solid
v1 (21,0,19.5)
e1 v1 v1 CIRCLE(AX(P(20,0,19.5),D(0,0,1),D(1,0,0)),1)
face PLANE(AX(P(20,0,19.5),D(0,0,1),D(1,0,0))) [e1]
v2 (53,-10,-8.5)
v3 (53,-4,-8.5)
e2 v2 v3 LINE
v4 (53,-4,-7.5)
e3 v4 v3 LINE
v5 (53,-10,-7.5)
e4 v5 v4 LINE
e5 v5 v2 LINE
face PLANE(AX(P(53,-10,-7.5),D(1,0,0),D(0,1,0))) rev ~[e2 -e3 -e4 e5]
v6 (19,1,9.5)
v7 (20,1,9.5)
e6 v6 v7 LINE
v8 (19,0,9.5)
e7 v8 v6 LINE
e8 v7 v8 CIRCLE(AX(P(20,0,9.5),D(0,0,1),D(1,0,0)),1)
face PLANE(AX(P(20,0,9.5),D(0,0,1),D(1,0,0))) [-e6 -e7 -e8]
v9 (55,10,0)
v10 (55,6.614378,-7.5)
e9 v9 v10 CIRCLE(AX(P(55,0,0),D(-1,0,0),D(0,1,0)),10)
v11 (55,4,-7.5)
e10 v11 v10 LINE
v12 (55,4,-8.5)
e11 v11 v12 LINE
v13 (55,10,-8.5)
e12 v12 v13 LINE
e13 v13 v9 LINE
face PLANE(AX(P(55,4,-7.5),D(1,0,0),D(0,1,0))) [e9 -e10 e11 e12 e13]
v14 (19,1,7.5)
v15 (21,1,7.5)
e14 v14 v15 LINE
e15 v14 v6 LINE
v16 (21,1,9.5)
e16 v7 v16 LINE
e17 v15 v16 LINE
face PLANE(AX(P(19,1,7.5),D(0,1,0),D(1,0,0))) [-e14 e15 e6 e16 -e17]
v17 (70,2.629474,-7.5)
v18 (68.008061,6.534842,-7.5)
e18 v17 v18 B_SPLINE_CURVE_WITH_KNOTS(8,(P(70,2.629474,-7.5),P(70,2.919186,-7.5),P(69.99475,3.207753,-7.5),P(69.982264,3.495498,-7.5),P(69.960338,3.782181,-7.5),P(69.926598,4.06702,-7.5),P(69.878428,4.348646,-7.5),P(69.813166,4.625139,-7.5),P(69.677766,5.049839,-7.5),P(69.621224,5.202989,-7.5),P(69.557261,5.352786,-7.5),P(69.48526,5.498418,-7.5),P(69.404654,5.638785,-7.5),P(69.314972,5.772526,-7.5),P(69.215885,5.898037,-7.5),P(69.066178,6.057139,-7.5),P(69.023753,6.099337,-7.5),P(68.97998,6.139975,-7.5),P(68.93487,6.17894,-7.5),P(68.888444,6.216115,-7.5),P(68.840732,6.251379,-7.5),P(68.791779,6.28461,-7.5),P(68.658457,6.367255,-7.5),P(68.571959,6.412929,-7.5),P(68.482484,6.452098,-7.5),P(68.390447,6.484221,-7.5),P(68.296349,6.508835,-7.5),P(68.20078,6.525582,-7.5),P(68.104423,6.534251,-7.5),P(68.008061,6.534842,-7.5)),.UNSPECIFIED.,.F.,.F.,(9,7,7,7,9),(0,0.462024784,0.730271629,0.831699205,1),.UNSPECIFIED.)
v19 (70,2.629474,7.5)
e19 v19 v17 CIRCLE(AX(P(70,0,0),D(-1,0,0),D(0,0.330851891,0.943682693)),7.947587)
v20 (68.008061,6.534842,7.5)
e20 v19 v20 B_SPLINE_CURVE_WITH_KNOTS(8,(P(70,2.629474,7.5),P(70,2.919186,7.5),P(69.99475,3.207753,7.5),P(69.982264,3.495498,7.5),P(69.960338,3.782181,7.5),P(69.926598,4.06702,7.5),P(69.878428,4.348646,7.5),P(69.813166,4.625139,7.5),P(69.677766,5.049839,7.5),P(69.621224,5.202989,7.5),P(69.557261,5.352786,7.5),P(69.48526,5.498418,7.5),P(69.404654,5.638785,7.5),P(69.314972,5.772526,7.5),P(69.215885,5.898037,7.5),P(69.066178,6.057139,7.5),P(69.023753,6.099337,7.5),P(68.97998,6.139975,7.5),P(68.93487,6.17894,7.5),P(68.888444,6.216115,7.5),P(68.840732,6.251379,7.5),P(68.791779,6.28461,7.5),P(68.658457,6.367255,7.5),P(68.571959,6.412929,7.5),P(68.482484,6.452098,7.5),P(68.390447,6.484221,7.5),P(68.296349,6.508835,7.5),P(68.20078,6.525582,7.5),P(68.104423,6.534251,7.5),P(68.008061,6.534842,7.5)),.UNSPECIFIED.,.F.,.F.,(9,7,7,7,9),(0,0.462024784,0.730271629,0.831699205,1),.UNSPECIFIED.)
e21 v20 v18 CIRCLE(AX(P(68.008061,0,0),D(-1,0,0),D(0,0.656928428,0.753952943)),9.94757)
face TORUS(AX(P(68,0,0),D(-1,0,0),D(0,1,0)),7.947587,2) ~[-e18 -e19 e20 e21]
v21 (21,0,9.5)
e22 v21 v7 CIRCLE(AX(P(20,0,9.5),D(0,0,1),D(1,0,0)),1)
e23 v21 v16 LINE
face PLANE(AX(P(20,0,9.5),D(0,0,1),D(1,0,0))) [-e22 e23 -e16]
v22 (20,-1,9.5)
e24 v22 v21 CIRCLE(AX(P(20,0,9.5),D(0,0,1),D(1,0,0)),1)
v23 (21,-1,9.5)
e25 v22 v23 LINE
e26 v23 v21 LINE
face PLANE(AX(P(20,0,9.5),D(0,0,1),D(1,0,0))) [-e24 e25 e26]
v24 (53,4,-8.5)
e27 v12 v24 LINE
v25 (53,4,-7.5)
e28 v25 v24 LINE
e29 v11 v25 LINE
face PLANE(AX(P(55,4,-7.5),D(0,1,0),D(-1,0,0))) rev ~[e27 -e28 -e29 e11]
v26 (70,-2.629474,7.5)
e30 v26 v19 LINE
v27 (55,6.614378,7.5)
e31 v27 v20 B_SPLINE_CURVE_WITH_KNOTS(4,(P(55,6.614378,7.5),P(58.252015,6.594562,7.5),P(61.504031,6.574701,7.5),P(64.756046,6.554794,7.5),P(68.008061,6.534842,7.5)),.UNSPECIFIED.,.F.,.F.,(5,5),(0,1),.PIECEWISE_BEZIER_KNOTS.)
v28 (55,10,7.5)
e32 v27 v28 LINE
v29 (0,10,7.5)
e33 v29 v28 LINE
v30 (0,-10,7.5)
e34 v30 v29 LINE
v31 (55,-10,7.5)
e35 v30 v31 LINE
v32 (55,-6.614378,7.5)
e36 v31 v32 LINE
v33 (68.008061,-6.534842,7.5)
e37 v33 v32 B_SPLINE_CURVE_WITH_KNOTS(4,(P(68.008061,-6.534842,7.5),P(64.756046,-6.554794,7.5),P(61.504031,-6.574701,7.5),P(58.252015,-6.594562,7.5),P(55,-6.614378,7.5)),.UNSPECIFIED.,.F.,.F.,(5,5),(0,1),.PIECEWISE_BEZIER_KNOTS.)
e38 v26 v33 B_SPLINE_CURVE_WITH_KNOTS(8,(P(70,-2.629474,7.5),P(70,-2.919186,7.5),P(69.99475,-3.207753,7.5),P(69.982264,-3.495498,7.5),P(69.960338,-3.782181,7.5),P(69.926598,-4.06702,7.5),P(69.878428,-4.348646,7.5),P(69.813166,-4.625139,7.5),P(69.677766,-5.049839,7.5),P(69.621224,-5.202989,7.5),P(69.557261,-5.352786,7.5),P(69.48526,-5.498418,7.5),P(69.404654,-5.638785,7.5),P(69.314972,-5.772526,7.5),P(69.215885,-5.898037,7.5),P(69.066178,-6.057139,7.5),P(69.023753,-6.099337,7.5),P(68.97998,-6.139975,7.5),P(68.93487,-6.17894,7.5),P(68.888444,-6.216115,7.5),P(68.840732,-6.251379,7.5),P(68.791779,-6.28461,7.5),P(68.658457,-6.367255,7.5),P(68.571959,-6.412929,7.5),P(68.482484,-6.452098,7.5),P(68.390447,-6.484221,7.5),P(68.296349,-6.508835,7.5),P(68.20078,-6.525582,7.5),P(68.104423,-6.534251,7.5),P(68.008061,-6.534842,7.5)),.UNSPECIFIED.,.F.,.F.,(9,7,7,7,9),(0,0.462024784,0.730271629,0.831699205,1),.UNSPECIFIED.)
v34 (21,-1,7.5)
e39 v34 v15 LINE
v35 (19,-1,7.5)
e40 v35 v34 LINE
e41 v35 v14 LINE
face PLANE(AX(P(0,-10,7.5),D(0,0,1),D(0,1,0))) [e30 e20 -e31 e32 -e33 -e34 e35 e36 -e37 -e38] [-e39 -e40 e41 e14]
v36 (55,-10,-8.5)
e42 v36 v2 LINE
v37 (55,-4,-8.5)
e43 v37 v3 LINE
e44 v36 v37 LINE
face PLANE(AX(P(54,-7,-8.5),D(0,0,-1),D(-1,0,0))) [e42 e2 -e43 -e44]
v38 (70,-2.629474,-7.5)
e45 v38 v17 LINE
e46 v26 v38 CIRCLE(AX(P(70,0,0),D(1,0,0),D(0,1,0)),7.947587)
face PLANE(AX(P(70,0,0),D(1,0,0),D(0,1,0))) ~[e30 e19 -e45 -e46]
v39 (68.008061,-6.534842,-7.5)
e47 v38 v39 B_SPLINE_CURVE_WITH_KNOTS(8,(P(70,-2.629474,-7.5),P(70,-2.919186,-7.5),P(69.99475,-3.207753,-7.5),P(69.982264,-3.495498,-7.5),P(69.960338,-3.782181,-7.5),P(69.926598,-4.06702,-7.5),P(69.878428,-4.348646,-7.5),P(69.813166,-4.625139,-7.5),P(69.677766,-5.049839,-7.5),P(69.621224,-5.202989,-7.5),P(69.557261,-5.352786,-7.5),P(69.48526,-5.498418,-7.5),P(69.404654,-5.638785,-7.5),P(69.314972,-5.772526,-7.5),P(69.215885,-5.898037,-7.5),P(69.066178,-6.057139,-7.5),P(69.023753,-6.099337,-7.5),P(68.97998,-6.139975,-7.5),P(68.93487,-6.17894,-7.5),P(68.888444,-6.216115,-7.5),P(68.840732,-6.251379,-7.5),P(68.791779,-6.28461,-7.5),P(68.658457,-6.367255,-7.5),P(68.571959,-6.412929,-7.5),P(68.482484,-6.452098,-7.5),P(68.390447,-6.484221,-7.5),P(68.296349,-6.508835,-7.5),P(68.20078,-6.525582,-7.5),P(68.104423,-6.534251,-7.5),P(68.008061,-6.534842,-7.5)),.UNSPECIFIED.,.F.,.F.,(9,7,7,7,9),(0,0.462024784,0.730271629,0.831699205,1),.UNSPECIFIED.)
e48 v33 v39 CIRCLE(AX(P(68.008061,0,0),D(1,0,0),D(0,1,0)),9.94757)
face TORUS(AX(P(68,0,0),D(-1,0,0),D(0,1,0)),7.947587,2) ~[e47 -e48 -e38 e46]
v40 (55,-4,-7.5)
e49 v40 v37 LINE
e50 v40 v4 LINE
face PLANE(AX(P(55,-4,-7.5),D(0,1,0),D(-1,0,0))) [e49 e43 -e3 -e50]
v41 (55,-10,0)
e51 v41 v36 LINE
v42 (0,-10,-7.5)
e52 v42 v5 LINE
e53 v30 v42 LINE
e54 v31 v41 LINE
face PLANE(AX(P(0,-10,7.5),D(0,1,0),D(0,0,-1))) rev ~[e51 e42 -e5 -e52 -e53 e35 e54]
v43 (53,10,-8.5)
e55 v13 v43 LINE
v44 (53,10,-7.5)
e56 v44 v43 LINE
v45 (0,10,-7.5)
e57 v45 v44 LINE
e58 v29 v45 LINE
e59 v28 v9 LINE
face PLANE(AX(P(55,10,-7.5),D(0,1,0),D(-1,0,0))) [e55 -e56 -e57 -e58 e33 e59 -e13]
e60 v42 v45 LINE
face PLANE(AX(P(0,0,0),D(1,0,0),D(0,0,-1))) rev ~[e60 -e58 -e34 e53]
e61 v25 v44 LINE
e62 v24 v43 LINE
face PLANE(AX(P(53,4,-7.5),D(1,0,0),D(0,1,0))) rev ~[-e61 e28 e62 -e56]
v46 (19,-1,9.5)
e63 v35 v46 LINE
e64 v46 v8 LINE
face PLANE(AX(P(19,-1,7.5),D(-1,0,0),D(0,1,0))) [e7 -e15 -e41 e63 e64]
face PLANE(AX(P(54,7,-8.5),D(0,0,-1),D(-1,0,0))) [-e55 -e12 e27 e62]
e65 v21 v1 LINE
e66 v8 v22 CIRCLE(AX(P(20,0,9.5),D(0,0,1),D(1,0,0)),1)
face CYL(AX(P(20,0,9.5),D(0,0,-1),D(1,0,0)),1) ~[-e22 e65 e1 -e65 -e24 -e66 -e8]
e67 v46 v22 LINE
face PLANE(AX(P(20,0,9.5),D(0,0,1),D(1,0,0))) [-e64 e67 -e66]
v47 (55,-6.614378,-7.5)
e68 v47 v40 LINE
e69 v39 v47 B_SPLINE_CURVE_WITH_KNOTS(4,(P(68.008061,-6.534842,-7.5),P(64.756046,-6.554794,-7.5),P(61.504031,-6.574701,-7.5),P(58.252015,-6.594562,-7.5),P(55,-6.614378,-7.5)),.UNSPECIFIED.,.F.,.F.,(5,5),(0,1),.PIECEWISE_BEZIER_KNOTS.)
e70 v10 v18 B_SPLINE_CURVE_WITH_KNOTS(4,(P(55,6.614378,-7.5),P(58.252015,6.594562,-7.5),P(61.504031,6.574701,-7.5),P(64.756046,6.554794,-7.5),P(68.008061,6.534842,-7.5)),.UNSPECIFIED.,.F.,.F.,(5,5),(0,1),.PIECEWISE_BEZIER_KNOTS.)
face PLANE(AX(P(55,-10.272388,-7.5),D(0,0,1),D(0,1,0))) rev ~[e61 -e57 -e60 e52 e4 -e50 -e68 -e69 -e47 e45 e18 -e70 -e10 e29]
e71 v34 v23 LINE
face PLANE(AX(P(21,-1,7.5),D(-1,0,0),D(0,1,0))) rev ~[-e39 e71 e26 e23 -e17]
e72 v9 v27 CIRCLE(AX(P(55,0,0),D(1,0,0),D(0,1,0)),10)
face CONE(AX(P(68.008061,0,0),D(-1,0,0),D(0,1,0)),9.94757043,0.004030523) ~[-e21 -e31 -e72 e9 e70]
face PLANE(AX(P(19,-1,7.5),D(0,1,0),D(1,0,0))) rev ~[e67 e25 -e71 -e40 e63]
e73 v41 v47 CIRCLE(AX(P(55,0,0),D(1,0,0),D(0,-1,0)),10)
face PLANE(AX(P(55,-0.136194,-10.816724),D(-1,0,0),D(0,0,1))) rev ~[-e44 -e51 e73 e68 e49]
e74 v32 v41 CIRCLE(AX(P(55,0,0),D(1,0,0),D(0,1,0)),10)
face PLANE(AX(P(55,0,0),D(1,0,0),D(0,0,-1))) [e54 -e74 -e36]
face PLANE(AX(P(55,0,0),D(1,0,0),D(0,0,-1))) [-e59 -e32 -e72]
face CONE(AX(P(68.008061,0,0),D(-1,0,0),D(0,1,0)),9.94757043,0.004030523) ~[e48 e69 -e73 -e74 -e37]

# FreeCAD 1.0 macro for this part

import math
import FreeCAD as App
import Part
import Sketcher


def add_polygon(sketch, points):
    """Adds a closed chain of lines whose ends are joined by coincident constraints."""
    first, n = sketch.GeometryCount, len(points)
    for a, b in zip(points, points[1:] + points[:1]):
        sketch.addGeometry(Part.LineSegment(App.Vector(*a, 0), App.Vector(*b, 0)), False)
    for i in range(n):
        sketch.addConstraint(Sketcher.Constraint("Coincident", first + i, 2, first + (i + 1) % n, 1))

doc = App.newDocument("Part")
body = doc.addObject("PartDesign::Body", "Body")

# Sketch on YZ plane
sketch1 = body.newObject("Sketcher::SketchObject", "Sketch")
sketch1.AttachmentSupport = (doc.getObject("YZ_Plane"), [""])
sketch1.MapMode = "FlatFace"
add_polygon(sketch1, [(10, 8), (-10, 8), (-10, -8), (10, -8)])  # lines 0-3
sketch1.addConstraint([
    Sketcher.Constraint("Horizontal", 0),
    Sketcher.Constraint("Vertical", 1),
    Sketcher.Constraint("Horizontal", 2),
    Sketcher.Constraint("Vertical", 3),
    Sketcher.Constraint("Symmetric", 0, 2, 2, 2, -1, 1),
    Sketcher.Constraint("DistanceX", 0, 2, 0, 1, 20.0),
    Sketcher.Constraint("DistanceY", 1, 2, 1, 1, 15.0),
])
pad1 = body.newObject("PartDesign::Pad", "Pad")
pad1.Profile = sketch1
pad1.Length = 55

# Sketch on XY plane
sketch2 = body.newObject("Sketcher::SketchObject", "Sketch001")
sketch2.AttachmentSupport = (doc.getObject("XY_Plane"), [""])
sketch2.MapMode = "FlatFace"
sketch2.addGeometry([
    Part.LineSegment(App.Vector(55, 0, 0), App.Vector(70, 0, 0)),  # 0
    Part.LineSegment(App.Vector(70, 0, 0), App.Vector(70, 7.9, 0)),  # 1
    Part.ArcOfCircle(Part.Circle(App.Vector(68, 7.9, 0), App.Vector(0, 0, 1), 2), math.radians(0), math.radians(90)),  # 2
    Part.LineSegment(App.Vector(68, 9.9, 0), App.Vector(55, 10, 0)),  # 3
    Part.LineSegment(App.Vector(55, 10, 0), App.Vector(55, 0, 0)),  # 4
], False)
sketch2.addConstraint([
    Sketcher.Constraint("Coincident", 0, 2, 1, 1),
    Sketcher.Constraint("Tangent", 1, 2, 2, 1),
    Sketcher.Constraint("Tangent", 2, 2, 3, 1),
    Sketcher.Constraint("Coincident", 3, 2, 4, 1),
    Sketcher.Constraint("Coincident", 4, 2, 0, 1),
    Sketcher.Constraint("Horizontal", 0),
    Sketcher.Constraint("Vertical", 1),
    Sketcher.Constraint("Vertical", 4),
    Sketcher.Constraint("PointOnObject", 0, 2, -1),
    Sketcher.Constraint("Radius", 2, 2.0),
    Sketcher.Constraint("DistanceX", 0, 1, 0, 2, 15.0),
    Sketcher.Constraint("DistanceY", 4, 2, 4, 1, 10.0),
    Sketcher.Constraint("DistanceX", -1, 1, 2, 3, 68.0),
    Sketcher.Constraint("DistanceY", 1, 1, 1, 2, 7.947587),
])
revolution = body.newObject("PartDesign::Revolution", "Revolution")
revolution.Profile = sketch2
revolution.ReferenceAxis = (sketch2, ["H_Axis"])
revolution.Angle = 360

# Sketch on XY plane
sketch3 = body.newObject("Sketcher::SketchObject", "Sketch002")
sketch3.AttachmentSupport = (doc.getObject("XY_Plane"), [""])
sketch3.MapMode = "FlatFace"
sketch3.AttachmentOffset = App.Placement(App.Vector(0, 0, -7.5), App.Rotation())
add_polygon(sketch3, [(55, 10), (55, 4), (53, 4), (53, 10)])  # lines 0-3
add_polygon(sketch3, [(55, -4), (55, -10), (53, -10), (53, -4)])  # lines 4-7
sketch3.addConstraint([
    Sketcher.Constraint("Vertical", 0),
    Sketcher.Constraint("Horizontal", 1),
    Sketcher.Constraint("Vertical", 2),
    Sketcher.Constraint("Horizontal", 3),
    Sketcher.Constraint("Vertical", 4),
    Sketcher.Constraint("Horizontal", 5),
    Sketcher.Constraint("Vertical", 6),
    Sketcher.Constraint("Horizontal", 7),
    Sketcher.Constraint("Symmetric", 3, 2, 4, 2, -1),
    Sketcher.Constraint("Symmetric", 1, 2, 6, 2, -1),
    Sketcher.Constraint("DistanceX", 1, 2, 1, 1, 2.0),
    Sketcher.Constraint("DistanceY", 0, 2, 0, 1, 6.0),
    Sketcher.Constraint("DistanceX", -1, 1, 0, 2, 55.0),
    Sketcher.Constraint("DistanceY", -1, 1, 0, 2, 4.0),
])
pad2 = body.newObject("PartDesign::Pad", "Pad001")
pad2.Profile = sketch3
pad2.Length = 1
pad2.Reversed = True

# Sketch on XY plane
sketch4 = body.newObject("Sketcher::SketchObject", "Sketch003")
sketch4.AttachmentSupport = (doc.getObject("XY_Plane"), [""])
sketch4.MapMode = "FlatFace"
sketch4.AttachmentOffset = App.Placement(App.Vector(0, 0, 7.5), App.Rotation())
add_polygon(sketch4, [(19, 1), (19, -1), (21, -1), (21, 1)])  # lines 0-3
sketch4.addConstraint([
    Sketcher.Constraint("Vertical", 0),
    Sketcher.Constraint("Horizontal", 1),
    Sketcher.Constraint("Vertical", 2),
    Sketcher.Constraint("Horizontal", 3),
    Sketcher.Constraint("Equal", 3, 0),
    Sketcher.Constraint("DistanceX", 1, 1, 1, 2, 2.0),
    Sketcher.Constraint("DistanceX", -1, 1, 0, 2, 19.0),
    Sketcher.Constraint("DistanceY", 0, 2, -1, 1, 1.0),
])
pad3 = body.newObject("PartDesign::Pad", "Pad002")
pad3.Profile = sketch4
pad3.Length = 2

# Sketch on YZ plane
sketch5 = body.newObject("Sketcher::SketchObject", "Sketch004")
sketch5.AttachmentSupport = (doc.getObject("YZ_Plane"), [""])
sketch5.MapMode = "FlatFace"
sketch5.AttachmentOffset = App.Placement(App.Vector(0, 0, 55), App.Rotation())
add_polygon(sketch5, [(10, -14), (-10, -14), (-10, -8), (10, -8)])  # lines 0-3
add_polygon(sketch5, [(10, 8), (-13, 8), (-13, 20), (10, 20)])  # lines 4-7
sketch5.addConstraint([
    Sketcher.Constraint("Horizontal", 0),
    Sketcher.Constraint("Vertical", 1),
    Sketcher.Constraint("Horizontal", 2),
    Sketcher.Constraint("Vertical", 3),
    Sketcher.Constraint("Horizontal", 4),
    Sketcher.Constraint("Vertical", 5),
    Sketcher.Constraint("Horizontal", 6),
    Sketcher.Constraint("Vertical", 7),
    Sketcher.Constraint("Symmetric", 2, 2, 7, 2, -1),
    Sketcher.Constraint("DistanceX", -1, 1, 2, 2, 10.0),
    Sketcher.Constraint("DistanceY", 1, 2, 4, 2, 15.0),
    Sketcher.Constraint("DistanceX", 0, 2, 0, 1, 20.272388),
    Sketcher.Constraint("DistanceX", 4, 2, 4, 1, 23.052374),
    Sketcher.Constraint("DistanceY", 1, 1, 1, 2, 6.633447),
    Sketcher.Constraint("DistanceY", 5, 1, 5, 2, 12.167116),
])
pocket1 = body.newObject("PartDesign::Pocket", "Pocket")
pocket1.Profile = sketch5
pocket1.Length = 24
pocket1.Reversed = True

# Sketch on XY plane
sketch6 = body.newObject("Sketcher::SketchObject", "Sketch005")
sketch6.AttachmentSupport = (doc.getObject("XY_Plane"), [""])
sketch6.MapMode = "FlatFace"
sketch6.AttachmentOffset = App.Placement(App.Vector(0, 0, 9.5), App.Rotation())
sketch6.addGeometry(Part.Circle(App.Vector(20, 0, 0), App.Vector(0, 0, 1), 1), False)
sketch6.addConstraint([
    Sketcher.Constraint("PointOnObject", 0, 3, -1),
    Sketcher.Constraint("Diameter", 0, 2.0),
    Sketcher.Constraint("DistanceX", -1, 1, 0, 3, 20.0),
])
pad4 = body.newObject("PartDesign::Pad", "Pad003")
pad4.Profile = sketch6
pad4.Length = 10

doc.recompute()
